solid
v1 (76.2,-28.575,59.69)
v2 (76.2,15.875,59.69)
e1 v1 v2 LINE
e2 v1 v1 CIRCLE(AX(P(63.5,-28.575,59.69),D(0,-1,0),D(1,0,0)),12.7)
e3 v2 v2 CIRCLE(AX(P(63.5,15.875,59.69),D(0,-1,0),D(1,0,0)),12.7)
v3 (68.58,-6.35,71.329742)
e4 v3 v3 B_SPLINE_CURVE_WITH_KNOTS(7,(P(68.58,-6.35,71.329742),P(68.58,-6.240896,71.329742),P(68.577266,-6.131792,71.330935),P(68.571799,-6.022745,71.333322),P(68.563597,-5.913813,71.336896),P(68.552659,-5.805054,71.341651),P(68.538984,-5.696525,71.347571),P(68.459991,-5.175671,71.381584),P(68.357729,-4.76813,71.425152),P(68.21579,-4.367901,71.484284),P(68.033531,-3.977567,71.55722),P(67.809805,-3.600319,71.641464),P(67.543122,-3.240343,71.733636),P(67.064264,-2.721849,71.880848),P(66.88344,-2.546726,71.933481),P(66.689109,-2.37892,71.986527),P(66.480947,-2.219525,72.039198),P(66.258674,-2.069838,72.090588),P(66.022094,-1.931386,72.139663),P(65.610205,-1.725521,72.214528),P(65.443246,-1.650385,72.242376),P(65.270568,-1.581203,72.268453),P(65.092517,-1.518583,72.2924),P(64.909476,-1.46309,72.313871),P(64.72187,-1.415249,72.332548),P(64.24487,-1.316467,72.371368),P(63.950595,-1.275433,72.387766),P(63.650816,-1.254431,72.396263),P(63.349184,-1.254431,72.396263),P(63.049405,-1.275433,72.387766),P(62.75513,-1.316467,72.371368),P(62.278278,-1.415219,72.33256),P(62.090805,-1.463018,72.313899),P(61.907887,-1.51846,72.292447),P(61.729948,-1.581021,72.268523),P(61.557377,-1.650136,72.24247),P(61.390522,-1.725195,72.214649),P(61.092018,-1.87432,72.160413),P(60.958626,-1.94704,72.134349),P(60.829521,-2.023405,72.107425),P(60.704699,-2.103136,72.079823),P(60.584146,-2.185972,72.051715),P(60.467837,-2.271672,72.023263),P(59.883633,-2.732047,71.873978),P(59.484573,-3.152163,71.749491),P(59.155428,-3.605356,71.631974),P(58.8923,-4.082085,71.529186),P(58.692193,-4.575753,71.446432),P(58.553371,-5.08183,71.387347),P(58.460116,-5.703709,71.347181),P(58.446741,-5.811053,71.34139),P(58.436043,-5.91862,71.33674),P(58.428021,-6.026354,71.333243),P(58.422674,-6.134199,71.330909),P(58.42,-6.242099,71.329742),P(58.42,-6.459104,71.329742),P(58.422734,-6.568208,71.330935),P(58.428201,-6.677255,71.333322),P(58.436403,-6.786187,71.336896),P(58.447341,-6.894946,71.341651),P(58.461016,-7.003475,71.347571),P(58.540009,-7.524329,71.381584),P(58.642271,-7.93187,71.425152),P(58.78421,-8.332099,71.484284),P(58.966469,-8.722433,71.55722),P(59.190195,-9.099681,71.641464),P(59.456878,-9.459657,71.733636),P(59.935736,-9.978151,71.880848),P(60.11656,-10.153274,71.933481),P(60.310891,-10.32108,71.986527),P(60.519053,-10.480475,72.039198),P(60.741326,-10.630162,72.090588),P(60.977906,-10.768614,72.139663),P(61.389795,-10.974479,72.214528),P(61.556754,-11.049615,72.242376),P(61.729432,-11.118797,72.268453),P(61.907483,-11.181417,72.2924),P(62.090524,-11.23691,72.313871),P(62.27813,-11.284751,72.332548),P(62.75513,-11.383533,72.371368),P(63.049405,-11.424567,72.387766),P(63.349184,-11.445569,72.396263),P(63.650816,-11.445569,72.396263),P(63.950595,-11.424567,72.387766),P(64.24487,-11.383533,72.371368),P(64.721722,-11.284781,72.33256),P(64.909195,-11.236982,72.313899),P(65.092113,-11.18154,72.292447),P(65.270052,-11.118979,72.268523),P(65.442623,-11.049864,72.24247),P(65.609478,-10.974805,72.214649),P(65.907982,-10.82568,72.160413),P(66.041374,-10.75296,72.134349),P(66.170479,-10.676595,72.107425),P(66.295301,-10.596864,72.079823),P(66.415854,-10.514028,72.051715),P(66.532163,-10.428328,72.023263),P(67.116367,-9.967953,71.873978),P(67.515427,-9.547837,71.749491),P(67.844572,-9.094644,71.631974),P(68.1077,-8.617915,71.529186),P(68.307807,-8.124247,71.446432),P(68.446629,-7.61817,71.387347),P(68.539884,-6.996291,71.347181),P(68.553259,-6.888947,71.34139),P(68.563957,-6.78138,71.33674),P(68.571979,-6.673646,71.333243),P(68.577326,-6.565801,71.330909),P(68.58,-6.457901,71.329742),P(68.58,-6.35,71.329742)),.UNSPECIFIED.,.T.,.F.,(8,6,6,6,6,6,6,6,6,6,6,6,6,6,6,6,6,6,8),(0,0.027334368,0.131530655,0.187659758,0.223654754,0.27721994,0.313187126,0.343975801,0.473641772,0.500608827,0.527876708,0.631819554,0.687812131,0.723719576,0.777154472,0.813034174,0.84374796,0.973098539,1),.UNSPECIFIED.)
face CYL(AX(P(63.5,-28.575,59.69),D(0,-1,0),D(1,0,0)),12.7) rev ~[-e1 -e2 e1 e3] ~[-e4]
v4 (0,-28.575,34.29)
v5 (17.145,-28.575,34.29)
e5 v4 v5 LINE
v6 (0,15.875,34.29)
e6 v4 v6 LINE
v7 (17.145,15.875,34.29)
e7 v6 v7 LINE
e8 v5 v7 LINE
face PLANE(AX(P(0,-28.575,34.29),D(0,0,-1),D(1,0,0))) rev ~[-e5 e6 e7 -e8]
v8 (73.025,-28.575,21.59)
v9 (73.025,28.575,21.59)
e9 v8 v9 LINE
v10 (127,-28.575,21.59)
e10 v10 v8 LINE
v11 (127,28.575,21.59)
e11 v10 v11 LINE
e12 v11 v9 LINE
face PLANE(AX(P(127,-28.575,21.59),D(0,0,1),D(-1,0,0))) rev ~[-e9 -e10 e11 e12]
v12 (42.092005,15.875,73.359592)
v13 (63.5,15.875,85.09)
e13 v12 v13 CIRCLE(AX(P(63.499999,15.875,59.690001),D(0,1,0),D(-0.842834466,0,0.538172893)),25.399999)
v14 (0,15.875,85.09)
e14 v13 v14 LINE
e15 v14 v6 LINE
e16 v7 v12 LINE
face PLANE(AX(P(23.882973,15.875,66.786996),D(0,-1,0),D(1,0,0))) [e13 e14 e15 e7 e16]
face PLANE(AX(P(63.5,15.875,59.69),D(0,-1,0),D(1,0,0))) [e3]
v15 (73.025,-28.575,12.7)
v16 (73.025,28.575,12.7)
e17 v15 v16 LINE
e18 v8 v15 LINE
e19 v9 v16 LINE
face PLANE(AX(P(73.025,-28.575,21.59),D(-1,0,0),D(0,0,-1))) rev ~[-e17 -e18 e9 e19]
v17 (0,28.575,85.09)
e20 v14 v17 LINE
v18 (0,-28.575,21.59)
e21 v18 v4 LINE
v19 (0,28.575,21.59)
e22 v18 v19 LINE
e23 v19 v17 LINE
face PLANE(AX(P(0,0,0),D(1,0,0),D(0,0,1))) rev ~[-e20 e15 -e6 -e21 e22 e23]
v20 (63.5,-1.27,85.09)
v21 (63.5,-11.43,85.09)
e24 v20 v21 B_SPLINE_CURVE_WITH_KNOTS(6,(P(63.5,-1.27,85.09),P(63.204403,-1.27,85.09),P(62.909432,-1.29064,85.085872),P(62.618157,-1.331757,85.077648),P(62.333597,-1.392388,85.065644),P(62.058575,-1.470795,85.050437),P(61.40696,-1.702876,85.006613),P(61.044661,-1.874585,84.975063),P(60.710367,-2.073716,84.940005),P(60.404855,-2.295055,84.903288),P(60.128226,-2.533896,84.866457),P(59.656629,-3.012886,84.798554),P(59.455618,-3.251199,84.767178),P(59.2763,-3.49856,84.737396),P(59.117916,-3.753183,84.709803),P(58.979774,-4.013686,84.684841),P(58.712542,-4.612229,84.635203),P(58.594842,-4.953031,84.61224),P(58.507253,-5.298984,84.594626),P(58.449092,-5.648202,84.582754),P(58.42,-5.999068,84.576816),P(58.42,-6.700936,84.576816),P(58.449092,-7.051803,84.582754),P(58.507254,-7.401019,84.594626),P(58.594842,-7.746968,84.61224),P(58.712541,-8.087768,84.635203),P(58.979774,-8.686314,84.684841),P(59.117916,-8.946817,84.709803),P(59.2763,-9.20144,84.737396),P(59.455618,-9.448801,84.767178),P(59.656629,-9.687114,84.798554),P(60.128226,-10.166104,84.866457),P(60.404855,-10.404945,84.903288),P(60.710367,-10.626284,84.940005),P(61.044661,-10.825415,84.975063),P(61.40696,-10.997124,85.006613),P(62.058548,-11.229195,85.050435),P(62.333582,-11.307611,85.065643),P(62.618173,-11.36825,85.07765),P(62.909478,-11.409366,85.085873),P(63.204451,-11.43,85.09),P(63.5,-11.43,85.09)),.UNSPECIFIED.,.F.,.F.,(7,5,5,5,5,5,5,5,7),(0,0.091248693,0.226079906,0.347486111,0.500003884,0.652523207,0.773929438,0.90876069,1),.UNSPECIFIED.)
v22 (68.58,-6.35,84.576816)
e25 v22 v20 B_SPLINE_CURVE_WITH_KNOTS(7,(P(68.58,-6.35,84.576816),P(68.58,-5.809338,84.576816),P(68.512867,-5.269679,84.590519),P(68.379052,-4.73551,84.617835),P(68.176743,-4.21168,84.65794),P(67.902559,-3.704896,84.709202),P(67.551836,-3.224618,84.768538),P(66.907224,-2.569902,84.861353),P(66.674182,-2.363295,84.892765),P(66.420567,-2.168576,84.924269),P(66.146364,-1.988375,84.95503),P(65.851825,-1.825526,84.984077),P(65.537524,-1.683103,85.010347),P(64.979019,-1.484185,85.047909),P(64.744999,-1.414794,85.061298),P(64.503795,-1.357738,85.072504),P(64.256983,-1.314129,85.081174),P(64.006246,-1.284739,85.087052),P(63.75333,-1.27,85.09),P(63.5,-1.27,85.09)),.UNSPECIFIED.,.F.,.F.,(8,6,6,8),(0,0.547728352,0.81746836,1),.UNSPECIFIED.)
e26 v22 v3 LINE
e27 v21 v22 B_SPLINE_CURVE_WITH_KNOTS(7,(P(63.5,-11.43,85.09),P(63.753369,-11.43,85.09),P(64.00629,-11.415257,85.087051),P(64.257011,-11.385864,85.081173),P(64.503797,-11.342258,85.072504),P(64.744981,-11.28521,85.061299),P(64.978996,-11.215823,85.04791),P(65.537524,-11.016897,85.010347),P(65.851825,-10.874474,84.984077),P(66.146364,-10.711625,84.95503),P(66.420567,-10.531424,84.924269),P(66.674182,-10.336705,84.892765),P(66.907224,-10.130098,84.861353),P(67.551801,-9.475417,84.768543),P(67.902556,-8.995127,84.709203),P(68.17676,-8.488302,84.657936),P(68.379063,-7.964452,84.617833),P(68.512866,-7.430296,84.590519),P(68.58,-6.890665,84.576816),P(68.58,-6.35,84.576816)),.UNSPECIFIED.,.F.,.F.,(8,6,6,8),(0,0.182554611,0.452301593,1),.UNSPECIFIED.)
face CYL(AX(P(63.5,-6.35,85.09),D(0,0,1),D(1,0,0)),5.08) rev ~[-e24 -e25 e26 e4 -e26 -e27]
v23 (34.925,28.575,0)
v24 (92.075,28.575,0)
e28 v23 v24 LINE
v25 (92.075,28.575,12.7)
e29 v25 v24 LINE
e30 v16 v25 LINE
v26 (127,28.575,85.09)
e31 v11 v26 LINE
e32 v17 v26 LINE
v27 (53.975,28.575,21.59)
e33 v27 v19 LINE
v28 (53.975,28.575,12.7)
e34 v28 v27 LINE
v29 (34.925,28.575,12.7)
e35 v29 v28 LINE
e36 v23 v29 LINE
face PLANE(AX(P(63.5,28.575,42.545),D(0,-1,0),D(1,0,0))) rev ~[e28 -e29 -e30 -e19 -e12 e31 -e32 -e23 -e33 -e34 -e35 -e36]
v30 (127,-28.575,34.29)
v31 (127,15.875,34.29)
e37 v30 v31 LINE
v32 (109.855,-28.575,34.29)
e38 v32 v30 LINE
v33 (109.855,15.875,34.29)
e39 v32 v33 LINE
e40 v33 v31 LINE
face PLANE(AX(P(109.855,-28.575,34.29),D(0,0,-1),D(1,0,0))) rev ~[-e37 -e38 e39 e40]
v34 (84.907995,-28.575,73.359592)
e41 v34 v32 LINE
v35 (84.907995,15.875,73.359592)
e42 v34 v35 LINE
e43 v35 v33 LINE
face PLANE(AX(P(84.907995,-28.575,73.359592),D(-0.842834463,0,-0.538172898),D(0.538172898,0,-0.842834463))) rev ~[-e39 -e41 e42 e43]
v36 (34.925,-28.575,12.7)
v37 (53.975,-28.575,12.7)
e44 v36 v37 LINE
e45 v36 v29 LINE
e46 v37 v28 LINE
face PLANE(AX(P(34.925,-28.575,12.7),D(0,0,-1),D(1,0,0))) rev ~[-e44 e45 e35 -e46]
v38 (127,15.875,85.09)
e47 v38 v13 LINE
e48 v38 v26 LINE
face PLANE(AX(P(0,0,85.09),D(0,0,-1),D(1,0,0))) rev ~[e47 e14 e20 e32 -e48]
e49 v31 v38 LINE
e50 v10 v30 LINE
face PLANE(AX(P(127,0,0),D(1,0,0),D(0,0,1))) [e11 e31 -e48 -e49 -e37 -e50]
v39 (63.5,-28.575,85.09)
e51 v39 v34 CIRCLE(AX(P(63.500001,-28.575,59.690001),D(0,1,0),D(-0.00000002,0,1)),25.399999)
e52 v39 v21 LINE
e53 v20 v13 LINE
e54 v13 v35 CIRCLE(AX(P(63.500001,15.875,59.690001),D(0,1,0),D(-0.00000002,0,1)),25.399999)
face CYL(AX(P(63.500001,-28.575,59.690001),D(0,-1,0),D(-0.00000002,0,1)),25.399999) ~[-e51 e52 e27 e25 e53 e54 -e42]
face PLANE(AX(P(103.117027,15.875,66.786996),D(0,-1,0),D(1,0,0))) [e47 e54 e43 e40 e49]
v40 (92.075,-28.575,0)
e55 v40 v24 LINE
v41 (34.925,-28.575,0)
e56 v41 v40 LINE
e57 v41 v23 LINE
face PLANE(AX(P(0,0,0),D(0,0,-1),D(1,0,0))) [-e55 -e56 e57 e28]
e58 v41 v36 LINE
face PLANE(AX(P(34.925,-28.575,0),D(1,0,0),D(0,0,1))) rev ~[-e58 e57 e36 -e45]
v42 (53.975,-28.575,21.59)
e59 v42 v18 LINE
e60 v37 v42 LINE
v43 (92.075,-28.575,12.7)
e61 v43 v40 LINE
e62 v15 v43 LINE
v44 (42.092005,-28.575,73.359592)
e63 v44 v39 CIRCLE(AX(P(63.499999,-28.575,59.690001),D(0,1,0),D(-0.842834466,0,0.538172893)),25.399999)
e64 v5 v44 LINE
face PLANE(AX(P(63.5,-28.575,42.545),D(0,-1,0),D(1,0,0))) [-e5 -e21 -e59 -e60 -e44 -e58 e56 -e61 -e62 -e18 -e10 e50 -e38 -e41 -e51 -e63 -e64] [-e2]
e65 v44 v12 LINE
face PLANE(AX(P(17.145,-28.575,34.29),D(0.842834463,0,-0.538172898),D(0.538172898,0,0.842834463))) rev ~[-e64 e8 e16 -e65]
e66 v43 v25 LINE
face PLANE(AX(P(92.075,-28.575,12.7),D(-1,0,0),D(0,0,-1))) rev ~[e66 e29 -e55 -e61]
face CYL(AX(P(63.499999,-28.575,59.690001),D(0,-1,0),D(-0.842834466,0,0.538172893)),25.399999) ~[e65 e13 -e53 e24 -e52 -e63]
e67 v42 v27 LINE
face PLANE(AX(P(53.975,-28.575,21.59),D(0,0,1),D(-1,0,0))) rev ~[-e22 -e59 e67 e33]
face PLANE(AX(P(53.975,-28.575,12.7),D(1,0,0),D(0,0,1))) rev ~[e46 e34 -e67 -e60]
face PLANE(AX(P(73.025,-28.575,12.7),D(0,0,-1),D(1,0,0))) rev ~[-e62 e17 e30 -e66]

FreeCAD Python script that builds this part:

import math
import FreeCAD as App
import Part
import Sketcher
from FreeCAD import Vector
Q = App.Units.Quantity


def add_polygon(sketch, points):
    """Adds a closed chain of lines whose ends are joined by coincident constraints."""
    first, n = sketch.GeometryCount, len(points)
    for a, b in zip(points, points[1:] + points[:1]):
        sketch.addGeometry(Part.LineSegment(App.Vector(*a, 0), App.Vector(*b, 0)), False)
    for i in range(n):
        sketch.addConstraint(Sketcher.Constraint("Coincident", first + i, 2, first + (i + 1) % n, 1))

doc = App.newDocument("Part")
body = doc.addObject("PartDesign::Body", "Body")

# Sketch on XZ plane
sketch1 = doc.addObject("Sketcher::SketchObject", "Sketch")
body.addObject(sketch1)
sketch1.AttachmentSupport = (doc.XZ_Plane, [""])
sketch1.MapMode = "FlatFace"
add_polygon(sketch1, [(0, 85.09), (0, 0), (127, 0), (127, 85.09)])  # lines 0-3
sketch1.addConstraint([
    Sketcher.Constraint("Vertical", 0),
    Sketcher.Constraint("Horizontal", 1),
    Sketcher.Constraint("Vertical", 2),
    Sketcher.Constraint("Horizontal", 3),
    Sketcher.Constraint("Coincident", 0, 2, -1, 1),
    Sketcher.Constraint("DistanceX", 1, 1, 1, 2, Q("5 in")),
    Sketcher.Constraint("DistanceY", 0, 2, 0, 1, Q("3.35 in")),
])
pad1 = doc.addObject("PartDesign::Pad", "Pad")
body.addObject(pad1)
pad1.Profile = sketch1
pad1.Length = Q("2.25 in")
pad1.Midplane = True

# Sketch on XZ plane
sketch2 = doc.addObject("Sketcher::SketchObject", "Sketch001")
body.addObject(sketch2)
sketch2.AttachmentSupport = (doc.XZ_Plane, [""])
sketch2.MapMode = "FlatFace"
sketch2.AttachmentOffset = App.Placement(Vector(0, 0, 1.125 * 25.4), App.Rotation())
add_polygon(sketch2, [(0, 0), (34.925, 0), (34.925, 12.7), (53.975, 12.7), (53.975, 21.59), (0, 21.59)])  # lines 0-5
add_polygon(sketch2, [(92.075, 12.7), (92.075, 0), (127, 0), (127, 21.59), (73.025, 21.59), (73.025, 12.7)])  # lines 6-11
sketch2.addConstraint([
    Sketcher.Constraint("Horizontal", 0),
    Sketcher.Constraint("Vertical", 1),
    Sketcher.Constraint("Horizontal", 2),
    Sketcher.Constraint("Vertical", 3),
    Sketcher.Constraint("Horizontal", 4),
    Sketcher.Constraint("Vertical", 5),
    Sketcher.Constraint("Vertical", 6),
    Sketcher.Constraint("Horizontal", 7),
    Sketcher.Constraint("Vertical", 8),
    Sketcher.Constraint("Horizontal", 9),
    Sketcher.Constraint("Vertical", 10),
    Sketcher.Constraint("Horizontal", 11),
    Sketcher.Constraint("Coincident", 5, 2, -1, 1),
    Sketcher.Constraint("PointOnObject", 6, 2, -1),
    Sketcher.Constraint("Horizontal", 4, 2, 8, 2),
    Sketcher.Constraint("Horizontal", 2, 2, 10, 2),
    Sketcher.Constraint("Equal", 0, 7),
    Sketcher.Constraint("Equal", 4, 9),
    Sketcher.Constraint("DistanceY", 1, 1, 1, 2, Q("0.5 in")),
    Sketcher.Constraint("DistanceX", -1, 1, 7, 2, Q("5 in")),
    Sketcher.Constraint("DistanceX", 2, 1, 2, 2, Q("0.75 in")),
    Sketcher.Constraint("DistanceY", 3, 1, 3, 2, Q("0.35 in")),
    Sketcher.Constraint("DistanceX", 2, 2, 6, 2, Q("1.5 in")),
])
pocket1 = doc.addObject("PartDesign::Pocket", "Pocket")
body.addObject(pocket1)
pocket1.Profile = sketch2
pocket1.Type = "ThroughAll"

# Sketch on XY plane
sketch3 = doc.addObject("Sketcher::SketchObject", "Sketch002")
body.addObject(sketch3)
sketch3.AttachmentSupport = (doc.XY_Plane, [""])
sketch3.MapMode = "FlatFace"
sketch3.AttachmentOffset = App.Placement(Vector(0, 0, 3.35 * 25.4), App.Rotation())
sketch3.addGeometry(Part.Circle(Vector(63.5, -6.35, 0), Vector(0, 0, 1), 5.08), False)
sketch3.addConstraint([
    Sketcher.Constraint("Diameter", 0, Q("0.4 in")),
    Sketcher.Constraint("DistanceX", -1, 1, 0, 3, Q("2.5 in")),
    Sketcher.Constraint("DistanceY", 0, 3, -1, 1, Q("0.25 in")),
])
pocket2 = doc.addObject("PartDesign::Pocket", "Pocket001")
body.addObject(pocket2)
pocket2.Profile = sketch3
pocket2.Length = Q("1 in")

# Sketch on XZ plane
sketch4 = doc.addObject("Sketcher::SketchObject", "Sketch003")
body.addObject(sketch4)
sketch4.AttachmentSupport = (doc.XZ_Plane, [""])
sketch4.MapMode = "FlatFace"
sketch4.AttachmentOffset = App.Placement(Vector(0, 0, 1.125 * 25.4), App.Rotation())
sketch4.addGeometry([
    Part.Circle(Vector(63.5, 59.69, 0), Vector(0, 0, 1), 12.7),  # 0
    Part.LineSegment(Vector(0, 85.09, 0), Vector(0, 34.29, 0)),  # 1
    Part.LineSegment(Vector(0, 34.29, 0), Vector(17.145, 34.29, 0)),  # 2
    Part.LineSegment(Vector(17.145, 34.29, 0), Vector(42.092005, 73.359592, 0)),  # 3
    Part.ArcOfCircle(Part.Circle(Vector(63.499999, 59.690001, 0), Vector(0, 0, 1), 25.399999), math.radians(89.999999), math.radians(147.440654)),  # 4
    Part.LineSegment(Vector(63.5, 85.09, 0), Vector(0, 85.09, 0)),  # 5
    Part.LineSegment(Vector(127, 85.09, 0), Vector(63.5, 85.09, 0)),  # 6
    Part.ArcOfCircle(Part.Circle(Vector(63.500001, 59.690001, 0), Vector(0, 0, 1), 25.399999), math.radians(32.559346), math.radians(90.000001)),  # 7
    Part.LineSegment(Vector(84.907995, 73.359592, 0), Vector(109.855, 34.29, 0)),  # 8
    Part.LineSegment(Vector(109.855, 34.29, 0), Vector(127, 34.29, 0)),  # 9
    Part.LineSegment(Vector(127, 34.29, 0), Vector(127, 85.09, 0)),  # 10
], False)
sketch4.addConstraint([
    Sketcher.Constraint("Coincident", 1, 2, 2, 1),
    Sketcher.Constraint("Coincident", 2, 2, 3, 1),
    Sketcher.Constraint("Tangent", 3, 2, 4, 2),
    Sketcher.Constraint("Tangent", 4, 1, 5, 1),
    Sketcher.Constraint("Coincident", 5, 2, 1, 1),
    Sketcher.Constraint("Tangent", 6, 2, 7, 2),
    Sketcher.Constraint("Tangent", 7, 1, 8, 1),
    Sketcher.Constraint("Coincident", 8, 2, 9, 1),
    Sketcher.Constraint("Coincident", 9, 2, 10, 1),
    Sketcher.Constraint("Coincident", 10, 2, 6, 1),
    Sketcher.Constraint("Vertical", 1),
    Sketcher.Constraint("Horizontal", 2),
    Sketcher.Constraint("Horizontal", 5),
    Sketcher.Constraint("Horizontal", 6),
    Sketcher.Constraint("Horizontal", 9),
    Sketcher.Constraint("Vertical", 10),
    Sketcher.Constraint("Coincident", 4, 3, 0, 3),
    Sketcher.Constraint("Coincident", 7, 3, 0, 3),
    Sketcher.Constraint("Equal", 4, 7),
    Sketcher.Constraint("PointOnObject", 1, 2, -2),
    Sketcher.Constraint("Horizontal", 3, 2, 7, 1),
    Sketcher.Constraint("Horizontal", 2, 2, 8, 2),
    Sketcher.Constraint("Equal", 5, 6),
    Sketcher.Constraint("Diameter", 0, Q("1 in")),
    Sketcher.Constraint("Radius", 4, Q("1 in")),
    Sketcher.Constraint("DistanceY", 1, 2, 1, 1, Q("2 in")),
    Sketcher.Constraint("DistanceX", 5, 2, 5, 1, Q("2.5 in")),
    Sketcher.Constraint("DistanceX", 2, 1, 2, 2, Q("0.675 in")),
    Sketcher.Constraint("DistanceY", -1, 1, 0, 3, Q("2.35 in")),
])
pocket3 = doc.addObject("PartDesign::Pocket", "Pocket002")
body.addObject(pocket3)
pocket3.Profile = sketch4
pocket3.Length = Q("1.75 in")

doc.recompute()
